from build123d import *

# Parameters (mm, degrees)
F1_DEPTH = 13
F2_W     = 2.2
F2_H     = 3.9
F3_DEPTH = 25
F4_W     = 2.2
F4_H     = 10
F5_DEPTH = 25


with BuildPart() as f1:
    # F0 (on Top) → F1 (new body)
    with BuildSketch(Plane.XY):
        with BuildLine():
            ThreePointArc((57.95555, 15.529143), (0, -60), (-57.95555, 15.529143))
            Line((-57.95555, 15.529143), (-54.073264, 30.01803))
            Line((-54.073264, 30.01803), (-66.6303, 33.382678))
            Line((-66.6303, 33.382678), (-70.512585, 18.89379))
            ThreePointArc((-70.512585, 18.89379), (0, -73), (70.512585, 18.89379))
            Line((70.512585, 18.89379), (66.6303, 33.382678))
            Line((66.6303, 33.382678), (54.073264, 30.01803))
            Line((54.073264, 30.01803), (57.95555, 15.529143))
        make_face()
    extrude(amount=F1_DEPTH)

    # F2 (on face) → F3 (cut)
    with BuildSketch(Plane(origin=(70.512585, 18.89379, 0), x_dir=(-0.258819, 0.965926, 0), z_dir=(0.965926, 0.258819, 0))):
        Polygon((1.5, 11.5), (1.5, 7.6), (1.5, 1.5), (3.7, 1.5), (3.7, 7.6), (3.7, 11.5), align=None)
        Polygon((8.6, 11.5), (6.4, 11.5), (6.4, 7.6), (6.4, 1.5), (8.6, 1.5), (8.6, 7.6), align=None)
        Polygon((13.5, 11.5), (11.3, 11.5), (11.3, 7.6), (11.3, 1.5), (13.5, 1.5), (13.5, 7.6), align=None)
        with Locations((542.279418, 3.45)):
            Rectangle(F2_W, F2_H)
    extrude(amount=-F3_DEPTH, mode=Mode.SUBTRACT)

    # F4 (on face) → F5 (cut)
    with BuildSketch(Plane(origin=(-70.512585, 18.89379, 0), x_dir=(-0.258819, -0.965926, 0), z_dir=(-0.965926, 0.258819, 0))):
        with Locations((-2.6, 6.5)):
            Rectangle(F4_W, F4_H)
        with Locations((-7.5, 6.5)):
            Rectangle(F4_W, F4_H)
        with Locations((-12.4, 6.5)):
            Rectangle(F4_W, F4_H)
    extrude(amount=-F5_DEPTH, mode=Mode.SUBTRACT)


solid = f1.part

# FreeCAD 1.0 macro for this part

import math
import FreeCAD as App
import Part
import Sketcher
Q = App.Units.Quantity

doc = App.newDocument("Part")
body = doc.addObject("PartDesign::Body", "Body")

sketch1 = body.newObject("Sketcher::SketchObject", "Sketch")
sketch1.AttachmentSupport = (doc.getObject("XY_Plane"), [""])
sketch1.MapMode = "FlatFace"
sketch1.addGeometry([
    Part.ArcOfCircle(Part.Circle(App.Vector(0, 0, 0), App.Vector(0, 0, 1), 60), math.radians(165), math.radians(375)),
    Part.LineSegment(App.Vector(-58, 16, 0), App.Vector(-54, 30, 0)),
    Part.LineSegment(App.Vector(-54, 30, 0), App.Vector(-67, 33, 0)),
    Part.LineSegment(App.Vector(-67, 33, 0), App.Vector(-71, 19, 0)),
    Part.ArcOfCircle(Part.Circle(App.Vector(0, 0, 0), App.Vector(0, 0, 1), 73), math.radians(165), math.radians(375)),
    Part.LineSegment(App.Vector(71, 19, 0), App.Vector(67, 33, 0)),
    Part.LineSegment(App.Vector(67, 33, 0), App.Vector(54, 30, 0)),
    Part.LineSegment(App.Vector(54, 30, 0), App.Vector(58, 16, 0)),
], False)
sketch1.addConstraint([
    Sketcher.Constraint("Tangent", 0, 1, 1, 1),
    Sketcher.Constraint("Coincident", 1, 2, 2, 1),
    Sketcher.Constraint("Coincident", 2, 2, 3, 1),
    Sketcher.Constraint("Tangent", 3, 2, 4, 1),
    Sketcher.Constraint("Tangent", 4, 2, 5, 1),
    Sketcher.Constraint("Coincident", 5, 2, 6, 1),
    Sketcher.Constraint("Coincident", 6, 2, 7, 1),
    Sketcher.Constraint("Tangent", 7, 2, 0, 2),
    Sketcher.Constraint("Coincident", 0, 3, -1, 1),
    Sketcher.Constraint("Coincident", 4, 3, -1, 1),
    Sketcher.Constraint("Symmetric", 2, 2, 5, 2, -2),
    Sketcher.Constraint("Symmetric", 1, 2, 6, 2, -2),
    Sketcher.Constraint("Perpendicular", 1, 2),
    Sketcher.Constraint("Perpendicular", 2, 3),
    Sketcher.Constraint("Radius", 0, 60.0),
    Sketcher.Constraint("Radius", 4, 73.0),
    Sketcher.Constraint("Angle", 1, Q("74.999998 deg")),
    Sketcher.Constraint("Distance", 1, 15.0),
])
pad1 = body.newObject("PartDesign::Pad", "Pad")
pad1.Profile = sketch1
pad1.Length = 13

sketch2 = body.newObject("Sketcher::SketchObject", "Sketch001")
sketch2.Placement = App.Placement(App.Vector(70.512585, 18.89379, 0), App.Rotation(App.Vector(-0.25881896, 0.965925849, 0), App.Vector(0, 0, 1), App.Vector(0.965925849, 0.25881896, 0), "ZXY"))
sketch2.addGeometry([
    Part.LineSegment(App.Vector(1.5, 11.5, 0), App.Vector(1.5, 1.5, 0)),
    Part.LineSegment(App.Vector(1.5, 1.5, 0), App.Vector(3.7, 1.5, 0)),
    Part.LineSegment(App.Vector(3.7, 1.5, 0), App.Vector(3.7, 11.5, 0)),
    Part.LineSegment(App.Vector(3.7, 11.5, 0), App.Vector(1.5, 11.5, 0)),
    Part.LineSegment(App.Vector(8.6, 11.5, 0), App.Vector(6.4, 11.5, 0)),
    Part.LineSegment(App.Vector(6.4, 11.5, 0), App.Vector(6.4, 1.5, 0)),
    Part.LineSegment(App.Vector(6.4, 1.5, 0), App.Vector(8.6, 1.5, 0)),
    Part.LineSegment(App.Vector(8.6, 1.5, 0), App.Vector(8.6, 11.5, 0)),
    Part.LineSegment(App.Vector(13.5, 11.5, 0), App.Vector(11.3, 11.5, 0)),
    Part.LineSegment(App.Vector(11.3, 11.5, 0), App.Vector(11.3, 1.5, 0)),
    Part.LineSegment(App.Vector(11.3, 1.5, 0), App.Vector(13.5, 1.5, 0)),
    Part.LineSegment(App.Vector(13.5, 1.5, 0), App.Vector(13.5, 11.5, 0)),
    Part.LineSegment(App.Vector(541.2, 5.4, 0), App.Vector(541.2, 1.5, 0)),
    Part.LineSegment(App.Vector(541.2, 1.5, 0), App.Vector(543.4, 1.5, 0)),
    Part.LineSegment(App.Vector(543.4, 1.5, 0), App.Vector(543.4, 5.4, 0)),
    Part.LineSegment(App.Vector(543.4, 5.4, 0), App.Vector(541.2, 5.4, 0)),
], False)
sketch2.addConstraint([
    Sketcher.Constraint("Coincident", 0, 2, 1, 1),
    Sketcher.Constraint("Coincident", 1, 2, 2, 1),
    Sketcher.Constraint("Coincident", 2, 2, 3, 1),
    Sketcher.Constraint("Coincident", 3, 2, 0, 1),
    Sketcher.Constraint("Coincident", 4, 2, 5, 1),
    Sketcher.Constraint("Coincident", 5, 2, 6, 1),
    Sketcher.Constraint("Coincident", 6, 2, 7, 1),
    Sketcher.Constraint("Coincident", 7, 2, 4, 1),
    Sketcher.Constraint("Coincident", 8, 2, 9, 1),
    Sketcher.Constraint("Coincident", 9, 2, 10, 1),
    Sketcher.Constraint("Coincident", 10, 2, 11, 1),
    Sketcher.Constraint("Coincident", 11, 2, 8, 1),
    Sketcher.Constraint("Coincident", 12, 2, 13, 1),
    Sketcher.Constraint("Coincident", 13, 2, 14, 1),
    Sketcher.Constraint("Coincident", 14, 2, 15, 1),
    Sketcher.Constraint("Coincident", 15, 2, 12, 1),
    Sketcher.Constraint("Vertical", 0),
    Sketcher.Constraint("Horizontal", 1),
    Sketcher.Constraint("Vertical", 2),
    Sketcher.Constraint("Horizontal", 3),
    Sketcher.Constraint("Horizontal", 4),
    Sketcher.Constraint("Vertical", 5),
    Sketcher.Constraint("Horizontal", 6),
    Sketcher.Constraint("Vertical", 7),
    Sketcher.Constraint("Horizontal", 8),
    Sketcher.Constraint("Vertical", 9),
    Sketcher.Constraint("Horizontal", 10),
    Sketcher.Constraint("Vertical", 11),
    Sketcher.Constraint("Vertical", 12),
    Sketcher.Constraint("Horizontal", 13),
    Sketcher.Constraint("Vertical", 14),
    Sketcher.Constraint("Horizontal", 15),
    Sketcher.Constraint("Horizontal", 3, 2, 4, 2),
    Sketcher.Constraint("Horizontal", 1, 2, 5, 2),
    Sketcher.Constraint("Horizontal", 7, 2, 8, 2),
    Sketcher.Constraint("Horizontal", 6, 2, 9, 2),
    Sketcher.Constraint("Horizontal", 10, 2, 12, 2),
    Sketcher.Constraint("Equal", 3, 4),
    Sketcher.Constraint("Equal", 6, 8),
    Sketcher.Constraint("Equal", 10, 13),
    Sketcher.Constraint("DistanceY", 0, 2, 0, 1, 10.0),
    Sketcher.Constraint("DistanceX", 1, 1, 1, 2, 2.2),
    Sketcher.Constraint("DistanceY", 12, 2, 12, 1, 3.9),
    Sketcher.Constraint("DistanceX", -1, 1, 0, 2, 1.5),
    Sketcher.Constraint("DistanceY", -1, 1, 0, 2, 1.5),
    Sketcher.Constraint("DistanceX", -1, 1, 4, 2, 6.4),
    Sketcher.Constraint("DistanceX", -1, 1, 8, 2, 11.3),
    Sketcher.Constraint("DistanceX", -1, 1, 12, 2, 541.179418),
])
pocket1 = body.newObject("PartDesign::Pocket", "Pocket")
pocket1.Profile = sketch2
pocket1.Length = 25

sketch3 = body.newObject("Sketcher::SketchObject", "Sketch002")
sketch3.Placement = App.Placement(App.Vector(-70.512585, 18.89379, 0), App.Rotation(App.Vector(-0.25881896, -0.965925849, 0), App.Vector(0, 0, 1), App.Vector(-0.965925849, 0.25881896, 0), "ZXY"))
sketch3.addGeometry([
    Part.LineSegment(App.Vector(-3.7, 11.5, 0), App.Vector(-3.7, 1.5, 0)),
    Part.LineSegment(App.Vector(-3.7, 1.5, 0), App.Vector(-1.5, 1.5, 0)),
    Part.LineSegment(App.Vector(-1.5, 1.5, 0), App.Vector(-1.5, 11.5, 0)),
    Part.LineSegment(App.Vector(-1.5, 11.5, 0), App.Vector(-3.7, 11.5, 0)),
    Part.LineSegment(App.Vector(-8.6, 11.5, 0), App.Vector(-8.6, 1.5, 0)),
    Part.LineSegment(App.Vector(-8.6, 1.5, 0), App.Vector(-6.4, 1.5, 0)),
    Part.LineSegment(App.Vector(-6.4, 1.5, 0), App.Vector(-6.4, 11.5, 0)),
    Part.LineSegment(App.Vector(-6.4, 11.5, 0), App.Vector(-8.6, 11.5, 0)),
    Part.LineSegment(App.Vector(-13.5, 11.5, 0), App.Vector(-13.5, 1.5, 0)),
    Part.LineSegment(App.Vector(-13.5, 1.5, 0), App.Vector(-11.3, 1.5, 0)),
    Part.LineSegment(App.Vector(-11.3, 1.5, 0), App.Vector(-11.3, 11.5, 0)),
    Part.LineSegment(App.Vector(-11.3, 11.5, 0), App.Vector(-13.5, 11.5, 0)),
], False)
sketch3.addConstraint([
    Sketcher.Constraint("Coincident", 0, 2, 1, 1),
    Sketcher.Constraint("Coincident", 1, 2, 2, 1),
    Sketcher.Constraint("Coincident", 2, 2, 3, 1),
    Sketcher.Constraint("Coincident", 3, 2, 0, 1),
    Sketcher.Constraint("Coincident", 4, 2, 5, 1),
    Sketcher.Constraint("Coincident", 5, 2, 6, 1),
    Sketcher.Constraint("Coincident", 6, 2, 7, 1),
    Sketcher.Constraint("Coincident", 7, 2, 4, 1),
    Sketcher.Constraint("Coincident", 8, 2, 9, 1),
    Sketcher.Constraint("Coincident", 9, 2, 10, 1),
    Sketcher.Constraint("Coincident", 10, 2, 11, 1),
    Sketcher.Constraint("Coincident", 11, 2, 8, 1),
    Sketcher.Constraint("Vertical", 0),
    Sketcher.Constraint("Horizontal", 1),
    Sketcher.Constraint("Vertical", 2),
    Sketcher.Constraint("Horizontal", 3),
    Sketcher.Constraint("Vertical", 4),
    Sketcher.Constraint("Horizontal", 5),
    Sketcher.Constraint("Vertical", 6),
    Sketcher.Constraint("Horizontal", 7),
    Sketcher.Constraint("Vertical", 8),
    Sketcher.Constraint("Horizontal", 9),
    Sketcher.Constraint("Vertical", 10),
    Sketcher.Constraint("Horizontal", 11),
    Sketcher.Constraint("Horizontal", 1, 2, 4, 2),
    Sketcher.Constraint("Horizontal", 3, 2, 6, 2),
    Sketcher.Constraint("Horizontal", 5, 2, 8, 2),
    Sketcher.Constraint("Horizontal", 7, 2, 10, 2),
    Sketcher.Constraint("Equal", 3, 5),
    Sketcher.Constraint("Equal", 7, 9),
    Sketcher.Constraint("DistanceY", 0, 2, 0, 1, 10.0),
    Sketcher.Constraint("DistanceX", 1, 1, 1, 2, 2.2),
    Sketcher.Constraint("DistanceX", 8, 2, 1, 2, 12.0),
    Sketcher.Constraint("DistanceX", 0, 2, -1, 1, 3.7),
    Sketcher.Constraint("DistanceY", -1, 1, 0, 2, 1.5),
    Sketcher.Constraint("DistanceX", 4, 2, -1, 1, 8.6),
])
pocket2 = body.newObject("PartDesign::Pocket", "Pocket001")
pocket2.Profile = sketch3
pocket2.Length = 25

doc.recompute()
